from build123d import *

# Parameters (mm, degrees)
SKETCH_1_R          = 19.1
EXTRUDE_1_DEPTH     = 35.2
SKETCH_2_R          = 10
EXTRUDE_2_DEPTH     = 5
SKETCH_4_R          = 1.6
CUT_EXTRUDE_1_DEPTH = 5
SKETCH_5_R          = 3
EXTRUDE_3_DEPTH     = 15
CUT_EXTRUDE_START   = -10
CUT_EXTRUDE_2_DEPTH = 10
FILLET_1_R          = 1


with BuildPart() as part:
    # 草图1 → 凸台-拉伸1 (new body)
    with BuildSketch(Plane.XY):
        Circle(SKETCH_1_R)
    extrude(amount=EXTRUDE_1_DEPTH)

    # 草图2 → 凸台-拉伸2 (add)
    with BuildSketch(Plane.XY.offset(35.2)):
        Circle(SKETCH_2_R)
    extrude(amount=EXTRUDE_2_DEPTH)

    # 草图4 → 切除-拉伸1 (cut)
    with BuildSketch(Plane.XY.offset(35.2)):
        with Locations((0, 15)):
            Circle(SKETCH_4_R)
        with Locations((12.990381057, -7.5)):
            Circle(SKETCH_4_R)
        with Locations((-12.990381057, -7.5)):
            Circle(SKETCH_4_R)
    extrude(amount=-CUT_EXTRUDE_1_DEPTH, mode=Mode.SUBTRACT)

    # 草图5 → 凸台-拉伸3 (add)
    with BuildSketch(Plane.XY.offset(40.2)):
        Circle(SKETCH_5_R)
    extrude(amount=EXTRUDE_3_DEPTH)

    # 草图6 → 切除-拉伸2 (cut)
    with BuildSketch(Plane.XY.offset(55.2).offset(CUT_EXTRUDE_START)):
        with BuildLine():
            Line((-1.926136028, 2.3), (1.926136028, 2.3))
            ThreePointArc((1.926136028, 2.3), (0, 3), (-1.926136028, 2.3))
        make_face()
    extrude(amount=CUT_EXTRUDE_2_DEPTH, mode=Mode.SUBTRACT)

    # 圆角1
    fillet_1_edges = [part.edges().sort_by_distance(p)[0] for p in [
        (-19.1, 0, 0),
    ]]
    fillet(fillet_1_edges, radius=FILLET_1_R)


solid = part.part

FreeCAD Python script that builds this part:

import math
import FreeCAD as App
import Part
import Sketcher

V = App.Vector
Q = App.Units.Quantity


def edges_at(feature, points):
    """Names of the edges that pass closest to the given points."""
    edges = feature.Shape.Edges
    near = lambda p: min(range(len(edges)), key=lambda i: edges[i].distToShape(Part.Vertex(*p))[0])
    return sorted({f"Edge{near(p) + 1}" for p in points})

doc = App.newDocument("Part")
body = doc.addObject("PartDesign::Body", "Body")

sketch1 = body.newObject("Sketcher::SketchObject", "Sketch")
sketch1.AttachmentSupport = (doc.getObject("XY_Plane"), [""])
sketch1.MapMode = "FlatFace"
sketch1.addGeometry(Part.Circle(V(0, 0, 0), V(0, 0, 1), 19.1), False)
sketch1.addConstraint([
    Sketcher.Constraint("Coincident", 0, 3, -1, 1),
    Sketcher.Constraint("Diameter", 0, Q("38.2 mm")),
])
pad1 = body.newObject("PartDesign::Pad", "Pad")
pad1.Profile = sketch1
pad1.Length = 35.2

sketch2 = body.newObject("Sketcher::SketchObject", "Sketch001")
sketch2.AttachmentSupport = (doc.getObject("XY_Plane"), [""])
sketch2.MapMode = "FlatFace"
sketch2.AttachmentOffset = App.Placement(V(0, 0, 35.2), App.Rotation())
sketch2.addGeometry(Part.Circle(V(0, 0, 0), V(0, 0, 1), 10), False)
sketch2.addConstraint([
    Sketcher.Constraint("Coincident", 0, 3, -1, 1),
    Sketcher.Constraint("Diameter", 0, Q("20 mm")),
])
pad2 = body.newObject("PartDesign::Pad", "Pad001")
pad2.Profile = sketch2
pad2.Length = 5

sketch3 = body.newObject("Sketcher::SketchObject", "Sketch002")
sketch3.AttachmentSupport = (doc.getObject("XY_Plane"), [""])
sketch3.MapMode = "FlatFace"
sketch3.AttachmentOffset = App.Placement(V(0, 0, 35.2), App.Rotation())
sketch3.addGeometry([
    Part.Circle(V(0, 15, 0), V(0, 0, 1), 1.6),
    Part.Circle(V(12.990381, -7.5, 0), V(0, 0, 1), 1.6),
    Part.Circle(V(-12.990381, -7.5, 0), V(0, 0, 1), 1.6),
], False)
sketch3.addConstraint([
    Sketcher.Constraint("Equal", 0, 1),
    Sketcher.Constraint("Equal", 1, 2),
    Sketcher.Constraint("Symmetric", 1, 3, 2, 3, -2),
    Sketcher.Constraint("PointOnObject", 0, 3, -2),
    Sketcher.Constraint("Diameter", 0, Q("3.2 mm")),
    Sketcher.Constraint("DistanceY", -1, 1, 0, 3, Q("15 mm")),
    Sketcher.Constraint("DistanceY", 1, 3, -1, 1, Q("7.5 mm")),
    Sketcher.Constraint("DistanceX", -1, 1, 1, 3, Q("12.990381 mm")),
])
pocket1 = body.newObject("PartDesign::Pocket", "Pocket")
pocket1.Profile = sketch3
pocket1.Length = 5

sketch4 = body.newObject("Sketcher::SketchObject", "Sketch003")
sketch4.AttachmentSupport = (doc.getObject("XY_Plane"), [""])
sketch4.MapMode = "FlatFace"
sketch4.AttachmentOffset = App.Placement(V(0, 0, 40.2), App.Rotation())
sketch4.addGeometry(Part.Circle(V(0, 0, 0), V(0, 0, 1), 3), False)
sketch4.addConstraint([
    Sketcher.Constraint("Coincident", 0, 3, -1, 1),
    Sketcher.Constraint("Diameter", 0, Q("6 mm")),
])
pad3 = body.newObject("PartDesign::Pad", "Pad002")
pad3.Profile = sketch4
pad3.Length = 15

sketch5 = body.newObject("Sketcher::SketchObject", "Sketch004")
sketch5.AttachmentSupport = (doc.getObject("XY_Plane"), [""])
sketch5.MapMode = "FlatFace"
sketch5.AttachmentOffset = App.Placement(V(0, 0, 45.2), App.Rotation())
sketch5.addGeometry([
    Part.LineSegment(V(-1.926136, 2.3, 0), V(1.926136, 2.3, 0)),
    Part.ArcOfCircle(Part.Circle(V(0, 0, 0), V(0, 0, 1), 3), math.radians(50.055495), math.radians(129.944505)),
], False)
sketch5.addConstraint([
    Sketcher.Constraint("Coincident", 0, 1, 1, 2),
    Sketcher.Constraint("Coincident", 1, 1, 0, 2),
    Sketcher.Constraint("Horizontal", 0),
    Sketcher.Constraint("Coincident", 1, 3, -1, 1),
    Sketcher.Constraint("Radius", 1, Q("3 mm")),
    Sketcher.Constraint("DistanceY", -1, 1, 0, 1, Q("2.3 mm")),
])
pocket2 = body.newObject("PartDesign::Pocket", "Pocket001")
pocket2.Profile = sketch5
pocket2.Length = 10
pocket2.Reversed = True
doc.recompute()

fillet = body.newObject("PartDesign::Fillet", "Fillet")
fillet.Base = (pocket2, edges_at(pocket2, [(-19.1, 0, 0)]))
fillet.Radius = 1

doc.recompute()
